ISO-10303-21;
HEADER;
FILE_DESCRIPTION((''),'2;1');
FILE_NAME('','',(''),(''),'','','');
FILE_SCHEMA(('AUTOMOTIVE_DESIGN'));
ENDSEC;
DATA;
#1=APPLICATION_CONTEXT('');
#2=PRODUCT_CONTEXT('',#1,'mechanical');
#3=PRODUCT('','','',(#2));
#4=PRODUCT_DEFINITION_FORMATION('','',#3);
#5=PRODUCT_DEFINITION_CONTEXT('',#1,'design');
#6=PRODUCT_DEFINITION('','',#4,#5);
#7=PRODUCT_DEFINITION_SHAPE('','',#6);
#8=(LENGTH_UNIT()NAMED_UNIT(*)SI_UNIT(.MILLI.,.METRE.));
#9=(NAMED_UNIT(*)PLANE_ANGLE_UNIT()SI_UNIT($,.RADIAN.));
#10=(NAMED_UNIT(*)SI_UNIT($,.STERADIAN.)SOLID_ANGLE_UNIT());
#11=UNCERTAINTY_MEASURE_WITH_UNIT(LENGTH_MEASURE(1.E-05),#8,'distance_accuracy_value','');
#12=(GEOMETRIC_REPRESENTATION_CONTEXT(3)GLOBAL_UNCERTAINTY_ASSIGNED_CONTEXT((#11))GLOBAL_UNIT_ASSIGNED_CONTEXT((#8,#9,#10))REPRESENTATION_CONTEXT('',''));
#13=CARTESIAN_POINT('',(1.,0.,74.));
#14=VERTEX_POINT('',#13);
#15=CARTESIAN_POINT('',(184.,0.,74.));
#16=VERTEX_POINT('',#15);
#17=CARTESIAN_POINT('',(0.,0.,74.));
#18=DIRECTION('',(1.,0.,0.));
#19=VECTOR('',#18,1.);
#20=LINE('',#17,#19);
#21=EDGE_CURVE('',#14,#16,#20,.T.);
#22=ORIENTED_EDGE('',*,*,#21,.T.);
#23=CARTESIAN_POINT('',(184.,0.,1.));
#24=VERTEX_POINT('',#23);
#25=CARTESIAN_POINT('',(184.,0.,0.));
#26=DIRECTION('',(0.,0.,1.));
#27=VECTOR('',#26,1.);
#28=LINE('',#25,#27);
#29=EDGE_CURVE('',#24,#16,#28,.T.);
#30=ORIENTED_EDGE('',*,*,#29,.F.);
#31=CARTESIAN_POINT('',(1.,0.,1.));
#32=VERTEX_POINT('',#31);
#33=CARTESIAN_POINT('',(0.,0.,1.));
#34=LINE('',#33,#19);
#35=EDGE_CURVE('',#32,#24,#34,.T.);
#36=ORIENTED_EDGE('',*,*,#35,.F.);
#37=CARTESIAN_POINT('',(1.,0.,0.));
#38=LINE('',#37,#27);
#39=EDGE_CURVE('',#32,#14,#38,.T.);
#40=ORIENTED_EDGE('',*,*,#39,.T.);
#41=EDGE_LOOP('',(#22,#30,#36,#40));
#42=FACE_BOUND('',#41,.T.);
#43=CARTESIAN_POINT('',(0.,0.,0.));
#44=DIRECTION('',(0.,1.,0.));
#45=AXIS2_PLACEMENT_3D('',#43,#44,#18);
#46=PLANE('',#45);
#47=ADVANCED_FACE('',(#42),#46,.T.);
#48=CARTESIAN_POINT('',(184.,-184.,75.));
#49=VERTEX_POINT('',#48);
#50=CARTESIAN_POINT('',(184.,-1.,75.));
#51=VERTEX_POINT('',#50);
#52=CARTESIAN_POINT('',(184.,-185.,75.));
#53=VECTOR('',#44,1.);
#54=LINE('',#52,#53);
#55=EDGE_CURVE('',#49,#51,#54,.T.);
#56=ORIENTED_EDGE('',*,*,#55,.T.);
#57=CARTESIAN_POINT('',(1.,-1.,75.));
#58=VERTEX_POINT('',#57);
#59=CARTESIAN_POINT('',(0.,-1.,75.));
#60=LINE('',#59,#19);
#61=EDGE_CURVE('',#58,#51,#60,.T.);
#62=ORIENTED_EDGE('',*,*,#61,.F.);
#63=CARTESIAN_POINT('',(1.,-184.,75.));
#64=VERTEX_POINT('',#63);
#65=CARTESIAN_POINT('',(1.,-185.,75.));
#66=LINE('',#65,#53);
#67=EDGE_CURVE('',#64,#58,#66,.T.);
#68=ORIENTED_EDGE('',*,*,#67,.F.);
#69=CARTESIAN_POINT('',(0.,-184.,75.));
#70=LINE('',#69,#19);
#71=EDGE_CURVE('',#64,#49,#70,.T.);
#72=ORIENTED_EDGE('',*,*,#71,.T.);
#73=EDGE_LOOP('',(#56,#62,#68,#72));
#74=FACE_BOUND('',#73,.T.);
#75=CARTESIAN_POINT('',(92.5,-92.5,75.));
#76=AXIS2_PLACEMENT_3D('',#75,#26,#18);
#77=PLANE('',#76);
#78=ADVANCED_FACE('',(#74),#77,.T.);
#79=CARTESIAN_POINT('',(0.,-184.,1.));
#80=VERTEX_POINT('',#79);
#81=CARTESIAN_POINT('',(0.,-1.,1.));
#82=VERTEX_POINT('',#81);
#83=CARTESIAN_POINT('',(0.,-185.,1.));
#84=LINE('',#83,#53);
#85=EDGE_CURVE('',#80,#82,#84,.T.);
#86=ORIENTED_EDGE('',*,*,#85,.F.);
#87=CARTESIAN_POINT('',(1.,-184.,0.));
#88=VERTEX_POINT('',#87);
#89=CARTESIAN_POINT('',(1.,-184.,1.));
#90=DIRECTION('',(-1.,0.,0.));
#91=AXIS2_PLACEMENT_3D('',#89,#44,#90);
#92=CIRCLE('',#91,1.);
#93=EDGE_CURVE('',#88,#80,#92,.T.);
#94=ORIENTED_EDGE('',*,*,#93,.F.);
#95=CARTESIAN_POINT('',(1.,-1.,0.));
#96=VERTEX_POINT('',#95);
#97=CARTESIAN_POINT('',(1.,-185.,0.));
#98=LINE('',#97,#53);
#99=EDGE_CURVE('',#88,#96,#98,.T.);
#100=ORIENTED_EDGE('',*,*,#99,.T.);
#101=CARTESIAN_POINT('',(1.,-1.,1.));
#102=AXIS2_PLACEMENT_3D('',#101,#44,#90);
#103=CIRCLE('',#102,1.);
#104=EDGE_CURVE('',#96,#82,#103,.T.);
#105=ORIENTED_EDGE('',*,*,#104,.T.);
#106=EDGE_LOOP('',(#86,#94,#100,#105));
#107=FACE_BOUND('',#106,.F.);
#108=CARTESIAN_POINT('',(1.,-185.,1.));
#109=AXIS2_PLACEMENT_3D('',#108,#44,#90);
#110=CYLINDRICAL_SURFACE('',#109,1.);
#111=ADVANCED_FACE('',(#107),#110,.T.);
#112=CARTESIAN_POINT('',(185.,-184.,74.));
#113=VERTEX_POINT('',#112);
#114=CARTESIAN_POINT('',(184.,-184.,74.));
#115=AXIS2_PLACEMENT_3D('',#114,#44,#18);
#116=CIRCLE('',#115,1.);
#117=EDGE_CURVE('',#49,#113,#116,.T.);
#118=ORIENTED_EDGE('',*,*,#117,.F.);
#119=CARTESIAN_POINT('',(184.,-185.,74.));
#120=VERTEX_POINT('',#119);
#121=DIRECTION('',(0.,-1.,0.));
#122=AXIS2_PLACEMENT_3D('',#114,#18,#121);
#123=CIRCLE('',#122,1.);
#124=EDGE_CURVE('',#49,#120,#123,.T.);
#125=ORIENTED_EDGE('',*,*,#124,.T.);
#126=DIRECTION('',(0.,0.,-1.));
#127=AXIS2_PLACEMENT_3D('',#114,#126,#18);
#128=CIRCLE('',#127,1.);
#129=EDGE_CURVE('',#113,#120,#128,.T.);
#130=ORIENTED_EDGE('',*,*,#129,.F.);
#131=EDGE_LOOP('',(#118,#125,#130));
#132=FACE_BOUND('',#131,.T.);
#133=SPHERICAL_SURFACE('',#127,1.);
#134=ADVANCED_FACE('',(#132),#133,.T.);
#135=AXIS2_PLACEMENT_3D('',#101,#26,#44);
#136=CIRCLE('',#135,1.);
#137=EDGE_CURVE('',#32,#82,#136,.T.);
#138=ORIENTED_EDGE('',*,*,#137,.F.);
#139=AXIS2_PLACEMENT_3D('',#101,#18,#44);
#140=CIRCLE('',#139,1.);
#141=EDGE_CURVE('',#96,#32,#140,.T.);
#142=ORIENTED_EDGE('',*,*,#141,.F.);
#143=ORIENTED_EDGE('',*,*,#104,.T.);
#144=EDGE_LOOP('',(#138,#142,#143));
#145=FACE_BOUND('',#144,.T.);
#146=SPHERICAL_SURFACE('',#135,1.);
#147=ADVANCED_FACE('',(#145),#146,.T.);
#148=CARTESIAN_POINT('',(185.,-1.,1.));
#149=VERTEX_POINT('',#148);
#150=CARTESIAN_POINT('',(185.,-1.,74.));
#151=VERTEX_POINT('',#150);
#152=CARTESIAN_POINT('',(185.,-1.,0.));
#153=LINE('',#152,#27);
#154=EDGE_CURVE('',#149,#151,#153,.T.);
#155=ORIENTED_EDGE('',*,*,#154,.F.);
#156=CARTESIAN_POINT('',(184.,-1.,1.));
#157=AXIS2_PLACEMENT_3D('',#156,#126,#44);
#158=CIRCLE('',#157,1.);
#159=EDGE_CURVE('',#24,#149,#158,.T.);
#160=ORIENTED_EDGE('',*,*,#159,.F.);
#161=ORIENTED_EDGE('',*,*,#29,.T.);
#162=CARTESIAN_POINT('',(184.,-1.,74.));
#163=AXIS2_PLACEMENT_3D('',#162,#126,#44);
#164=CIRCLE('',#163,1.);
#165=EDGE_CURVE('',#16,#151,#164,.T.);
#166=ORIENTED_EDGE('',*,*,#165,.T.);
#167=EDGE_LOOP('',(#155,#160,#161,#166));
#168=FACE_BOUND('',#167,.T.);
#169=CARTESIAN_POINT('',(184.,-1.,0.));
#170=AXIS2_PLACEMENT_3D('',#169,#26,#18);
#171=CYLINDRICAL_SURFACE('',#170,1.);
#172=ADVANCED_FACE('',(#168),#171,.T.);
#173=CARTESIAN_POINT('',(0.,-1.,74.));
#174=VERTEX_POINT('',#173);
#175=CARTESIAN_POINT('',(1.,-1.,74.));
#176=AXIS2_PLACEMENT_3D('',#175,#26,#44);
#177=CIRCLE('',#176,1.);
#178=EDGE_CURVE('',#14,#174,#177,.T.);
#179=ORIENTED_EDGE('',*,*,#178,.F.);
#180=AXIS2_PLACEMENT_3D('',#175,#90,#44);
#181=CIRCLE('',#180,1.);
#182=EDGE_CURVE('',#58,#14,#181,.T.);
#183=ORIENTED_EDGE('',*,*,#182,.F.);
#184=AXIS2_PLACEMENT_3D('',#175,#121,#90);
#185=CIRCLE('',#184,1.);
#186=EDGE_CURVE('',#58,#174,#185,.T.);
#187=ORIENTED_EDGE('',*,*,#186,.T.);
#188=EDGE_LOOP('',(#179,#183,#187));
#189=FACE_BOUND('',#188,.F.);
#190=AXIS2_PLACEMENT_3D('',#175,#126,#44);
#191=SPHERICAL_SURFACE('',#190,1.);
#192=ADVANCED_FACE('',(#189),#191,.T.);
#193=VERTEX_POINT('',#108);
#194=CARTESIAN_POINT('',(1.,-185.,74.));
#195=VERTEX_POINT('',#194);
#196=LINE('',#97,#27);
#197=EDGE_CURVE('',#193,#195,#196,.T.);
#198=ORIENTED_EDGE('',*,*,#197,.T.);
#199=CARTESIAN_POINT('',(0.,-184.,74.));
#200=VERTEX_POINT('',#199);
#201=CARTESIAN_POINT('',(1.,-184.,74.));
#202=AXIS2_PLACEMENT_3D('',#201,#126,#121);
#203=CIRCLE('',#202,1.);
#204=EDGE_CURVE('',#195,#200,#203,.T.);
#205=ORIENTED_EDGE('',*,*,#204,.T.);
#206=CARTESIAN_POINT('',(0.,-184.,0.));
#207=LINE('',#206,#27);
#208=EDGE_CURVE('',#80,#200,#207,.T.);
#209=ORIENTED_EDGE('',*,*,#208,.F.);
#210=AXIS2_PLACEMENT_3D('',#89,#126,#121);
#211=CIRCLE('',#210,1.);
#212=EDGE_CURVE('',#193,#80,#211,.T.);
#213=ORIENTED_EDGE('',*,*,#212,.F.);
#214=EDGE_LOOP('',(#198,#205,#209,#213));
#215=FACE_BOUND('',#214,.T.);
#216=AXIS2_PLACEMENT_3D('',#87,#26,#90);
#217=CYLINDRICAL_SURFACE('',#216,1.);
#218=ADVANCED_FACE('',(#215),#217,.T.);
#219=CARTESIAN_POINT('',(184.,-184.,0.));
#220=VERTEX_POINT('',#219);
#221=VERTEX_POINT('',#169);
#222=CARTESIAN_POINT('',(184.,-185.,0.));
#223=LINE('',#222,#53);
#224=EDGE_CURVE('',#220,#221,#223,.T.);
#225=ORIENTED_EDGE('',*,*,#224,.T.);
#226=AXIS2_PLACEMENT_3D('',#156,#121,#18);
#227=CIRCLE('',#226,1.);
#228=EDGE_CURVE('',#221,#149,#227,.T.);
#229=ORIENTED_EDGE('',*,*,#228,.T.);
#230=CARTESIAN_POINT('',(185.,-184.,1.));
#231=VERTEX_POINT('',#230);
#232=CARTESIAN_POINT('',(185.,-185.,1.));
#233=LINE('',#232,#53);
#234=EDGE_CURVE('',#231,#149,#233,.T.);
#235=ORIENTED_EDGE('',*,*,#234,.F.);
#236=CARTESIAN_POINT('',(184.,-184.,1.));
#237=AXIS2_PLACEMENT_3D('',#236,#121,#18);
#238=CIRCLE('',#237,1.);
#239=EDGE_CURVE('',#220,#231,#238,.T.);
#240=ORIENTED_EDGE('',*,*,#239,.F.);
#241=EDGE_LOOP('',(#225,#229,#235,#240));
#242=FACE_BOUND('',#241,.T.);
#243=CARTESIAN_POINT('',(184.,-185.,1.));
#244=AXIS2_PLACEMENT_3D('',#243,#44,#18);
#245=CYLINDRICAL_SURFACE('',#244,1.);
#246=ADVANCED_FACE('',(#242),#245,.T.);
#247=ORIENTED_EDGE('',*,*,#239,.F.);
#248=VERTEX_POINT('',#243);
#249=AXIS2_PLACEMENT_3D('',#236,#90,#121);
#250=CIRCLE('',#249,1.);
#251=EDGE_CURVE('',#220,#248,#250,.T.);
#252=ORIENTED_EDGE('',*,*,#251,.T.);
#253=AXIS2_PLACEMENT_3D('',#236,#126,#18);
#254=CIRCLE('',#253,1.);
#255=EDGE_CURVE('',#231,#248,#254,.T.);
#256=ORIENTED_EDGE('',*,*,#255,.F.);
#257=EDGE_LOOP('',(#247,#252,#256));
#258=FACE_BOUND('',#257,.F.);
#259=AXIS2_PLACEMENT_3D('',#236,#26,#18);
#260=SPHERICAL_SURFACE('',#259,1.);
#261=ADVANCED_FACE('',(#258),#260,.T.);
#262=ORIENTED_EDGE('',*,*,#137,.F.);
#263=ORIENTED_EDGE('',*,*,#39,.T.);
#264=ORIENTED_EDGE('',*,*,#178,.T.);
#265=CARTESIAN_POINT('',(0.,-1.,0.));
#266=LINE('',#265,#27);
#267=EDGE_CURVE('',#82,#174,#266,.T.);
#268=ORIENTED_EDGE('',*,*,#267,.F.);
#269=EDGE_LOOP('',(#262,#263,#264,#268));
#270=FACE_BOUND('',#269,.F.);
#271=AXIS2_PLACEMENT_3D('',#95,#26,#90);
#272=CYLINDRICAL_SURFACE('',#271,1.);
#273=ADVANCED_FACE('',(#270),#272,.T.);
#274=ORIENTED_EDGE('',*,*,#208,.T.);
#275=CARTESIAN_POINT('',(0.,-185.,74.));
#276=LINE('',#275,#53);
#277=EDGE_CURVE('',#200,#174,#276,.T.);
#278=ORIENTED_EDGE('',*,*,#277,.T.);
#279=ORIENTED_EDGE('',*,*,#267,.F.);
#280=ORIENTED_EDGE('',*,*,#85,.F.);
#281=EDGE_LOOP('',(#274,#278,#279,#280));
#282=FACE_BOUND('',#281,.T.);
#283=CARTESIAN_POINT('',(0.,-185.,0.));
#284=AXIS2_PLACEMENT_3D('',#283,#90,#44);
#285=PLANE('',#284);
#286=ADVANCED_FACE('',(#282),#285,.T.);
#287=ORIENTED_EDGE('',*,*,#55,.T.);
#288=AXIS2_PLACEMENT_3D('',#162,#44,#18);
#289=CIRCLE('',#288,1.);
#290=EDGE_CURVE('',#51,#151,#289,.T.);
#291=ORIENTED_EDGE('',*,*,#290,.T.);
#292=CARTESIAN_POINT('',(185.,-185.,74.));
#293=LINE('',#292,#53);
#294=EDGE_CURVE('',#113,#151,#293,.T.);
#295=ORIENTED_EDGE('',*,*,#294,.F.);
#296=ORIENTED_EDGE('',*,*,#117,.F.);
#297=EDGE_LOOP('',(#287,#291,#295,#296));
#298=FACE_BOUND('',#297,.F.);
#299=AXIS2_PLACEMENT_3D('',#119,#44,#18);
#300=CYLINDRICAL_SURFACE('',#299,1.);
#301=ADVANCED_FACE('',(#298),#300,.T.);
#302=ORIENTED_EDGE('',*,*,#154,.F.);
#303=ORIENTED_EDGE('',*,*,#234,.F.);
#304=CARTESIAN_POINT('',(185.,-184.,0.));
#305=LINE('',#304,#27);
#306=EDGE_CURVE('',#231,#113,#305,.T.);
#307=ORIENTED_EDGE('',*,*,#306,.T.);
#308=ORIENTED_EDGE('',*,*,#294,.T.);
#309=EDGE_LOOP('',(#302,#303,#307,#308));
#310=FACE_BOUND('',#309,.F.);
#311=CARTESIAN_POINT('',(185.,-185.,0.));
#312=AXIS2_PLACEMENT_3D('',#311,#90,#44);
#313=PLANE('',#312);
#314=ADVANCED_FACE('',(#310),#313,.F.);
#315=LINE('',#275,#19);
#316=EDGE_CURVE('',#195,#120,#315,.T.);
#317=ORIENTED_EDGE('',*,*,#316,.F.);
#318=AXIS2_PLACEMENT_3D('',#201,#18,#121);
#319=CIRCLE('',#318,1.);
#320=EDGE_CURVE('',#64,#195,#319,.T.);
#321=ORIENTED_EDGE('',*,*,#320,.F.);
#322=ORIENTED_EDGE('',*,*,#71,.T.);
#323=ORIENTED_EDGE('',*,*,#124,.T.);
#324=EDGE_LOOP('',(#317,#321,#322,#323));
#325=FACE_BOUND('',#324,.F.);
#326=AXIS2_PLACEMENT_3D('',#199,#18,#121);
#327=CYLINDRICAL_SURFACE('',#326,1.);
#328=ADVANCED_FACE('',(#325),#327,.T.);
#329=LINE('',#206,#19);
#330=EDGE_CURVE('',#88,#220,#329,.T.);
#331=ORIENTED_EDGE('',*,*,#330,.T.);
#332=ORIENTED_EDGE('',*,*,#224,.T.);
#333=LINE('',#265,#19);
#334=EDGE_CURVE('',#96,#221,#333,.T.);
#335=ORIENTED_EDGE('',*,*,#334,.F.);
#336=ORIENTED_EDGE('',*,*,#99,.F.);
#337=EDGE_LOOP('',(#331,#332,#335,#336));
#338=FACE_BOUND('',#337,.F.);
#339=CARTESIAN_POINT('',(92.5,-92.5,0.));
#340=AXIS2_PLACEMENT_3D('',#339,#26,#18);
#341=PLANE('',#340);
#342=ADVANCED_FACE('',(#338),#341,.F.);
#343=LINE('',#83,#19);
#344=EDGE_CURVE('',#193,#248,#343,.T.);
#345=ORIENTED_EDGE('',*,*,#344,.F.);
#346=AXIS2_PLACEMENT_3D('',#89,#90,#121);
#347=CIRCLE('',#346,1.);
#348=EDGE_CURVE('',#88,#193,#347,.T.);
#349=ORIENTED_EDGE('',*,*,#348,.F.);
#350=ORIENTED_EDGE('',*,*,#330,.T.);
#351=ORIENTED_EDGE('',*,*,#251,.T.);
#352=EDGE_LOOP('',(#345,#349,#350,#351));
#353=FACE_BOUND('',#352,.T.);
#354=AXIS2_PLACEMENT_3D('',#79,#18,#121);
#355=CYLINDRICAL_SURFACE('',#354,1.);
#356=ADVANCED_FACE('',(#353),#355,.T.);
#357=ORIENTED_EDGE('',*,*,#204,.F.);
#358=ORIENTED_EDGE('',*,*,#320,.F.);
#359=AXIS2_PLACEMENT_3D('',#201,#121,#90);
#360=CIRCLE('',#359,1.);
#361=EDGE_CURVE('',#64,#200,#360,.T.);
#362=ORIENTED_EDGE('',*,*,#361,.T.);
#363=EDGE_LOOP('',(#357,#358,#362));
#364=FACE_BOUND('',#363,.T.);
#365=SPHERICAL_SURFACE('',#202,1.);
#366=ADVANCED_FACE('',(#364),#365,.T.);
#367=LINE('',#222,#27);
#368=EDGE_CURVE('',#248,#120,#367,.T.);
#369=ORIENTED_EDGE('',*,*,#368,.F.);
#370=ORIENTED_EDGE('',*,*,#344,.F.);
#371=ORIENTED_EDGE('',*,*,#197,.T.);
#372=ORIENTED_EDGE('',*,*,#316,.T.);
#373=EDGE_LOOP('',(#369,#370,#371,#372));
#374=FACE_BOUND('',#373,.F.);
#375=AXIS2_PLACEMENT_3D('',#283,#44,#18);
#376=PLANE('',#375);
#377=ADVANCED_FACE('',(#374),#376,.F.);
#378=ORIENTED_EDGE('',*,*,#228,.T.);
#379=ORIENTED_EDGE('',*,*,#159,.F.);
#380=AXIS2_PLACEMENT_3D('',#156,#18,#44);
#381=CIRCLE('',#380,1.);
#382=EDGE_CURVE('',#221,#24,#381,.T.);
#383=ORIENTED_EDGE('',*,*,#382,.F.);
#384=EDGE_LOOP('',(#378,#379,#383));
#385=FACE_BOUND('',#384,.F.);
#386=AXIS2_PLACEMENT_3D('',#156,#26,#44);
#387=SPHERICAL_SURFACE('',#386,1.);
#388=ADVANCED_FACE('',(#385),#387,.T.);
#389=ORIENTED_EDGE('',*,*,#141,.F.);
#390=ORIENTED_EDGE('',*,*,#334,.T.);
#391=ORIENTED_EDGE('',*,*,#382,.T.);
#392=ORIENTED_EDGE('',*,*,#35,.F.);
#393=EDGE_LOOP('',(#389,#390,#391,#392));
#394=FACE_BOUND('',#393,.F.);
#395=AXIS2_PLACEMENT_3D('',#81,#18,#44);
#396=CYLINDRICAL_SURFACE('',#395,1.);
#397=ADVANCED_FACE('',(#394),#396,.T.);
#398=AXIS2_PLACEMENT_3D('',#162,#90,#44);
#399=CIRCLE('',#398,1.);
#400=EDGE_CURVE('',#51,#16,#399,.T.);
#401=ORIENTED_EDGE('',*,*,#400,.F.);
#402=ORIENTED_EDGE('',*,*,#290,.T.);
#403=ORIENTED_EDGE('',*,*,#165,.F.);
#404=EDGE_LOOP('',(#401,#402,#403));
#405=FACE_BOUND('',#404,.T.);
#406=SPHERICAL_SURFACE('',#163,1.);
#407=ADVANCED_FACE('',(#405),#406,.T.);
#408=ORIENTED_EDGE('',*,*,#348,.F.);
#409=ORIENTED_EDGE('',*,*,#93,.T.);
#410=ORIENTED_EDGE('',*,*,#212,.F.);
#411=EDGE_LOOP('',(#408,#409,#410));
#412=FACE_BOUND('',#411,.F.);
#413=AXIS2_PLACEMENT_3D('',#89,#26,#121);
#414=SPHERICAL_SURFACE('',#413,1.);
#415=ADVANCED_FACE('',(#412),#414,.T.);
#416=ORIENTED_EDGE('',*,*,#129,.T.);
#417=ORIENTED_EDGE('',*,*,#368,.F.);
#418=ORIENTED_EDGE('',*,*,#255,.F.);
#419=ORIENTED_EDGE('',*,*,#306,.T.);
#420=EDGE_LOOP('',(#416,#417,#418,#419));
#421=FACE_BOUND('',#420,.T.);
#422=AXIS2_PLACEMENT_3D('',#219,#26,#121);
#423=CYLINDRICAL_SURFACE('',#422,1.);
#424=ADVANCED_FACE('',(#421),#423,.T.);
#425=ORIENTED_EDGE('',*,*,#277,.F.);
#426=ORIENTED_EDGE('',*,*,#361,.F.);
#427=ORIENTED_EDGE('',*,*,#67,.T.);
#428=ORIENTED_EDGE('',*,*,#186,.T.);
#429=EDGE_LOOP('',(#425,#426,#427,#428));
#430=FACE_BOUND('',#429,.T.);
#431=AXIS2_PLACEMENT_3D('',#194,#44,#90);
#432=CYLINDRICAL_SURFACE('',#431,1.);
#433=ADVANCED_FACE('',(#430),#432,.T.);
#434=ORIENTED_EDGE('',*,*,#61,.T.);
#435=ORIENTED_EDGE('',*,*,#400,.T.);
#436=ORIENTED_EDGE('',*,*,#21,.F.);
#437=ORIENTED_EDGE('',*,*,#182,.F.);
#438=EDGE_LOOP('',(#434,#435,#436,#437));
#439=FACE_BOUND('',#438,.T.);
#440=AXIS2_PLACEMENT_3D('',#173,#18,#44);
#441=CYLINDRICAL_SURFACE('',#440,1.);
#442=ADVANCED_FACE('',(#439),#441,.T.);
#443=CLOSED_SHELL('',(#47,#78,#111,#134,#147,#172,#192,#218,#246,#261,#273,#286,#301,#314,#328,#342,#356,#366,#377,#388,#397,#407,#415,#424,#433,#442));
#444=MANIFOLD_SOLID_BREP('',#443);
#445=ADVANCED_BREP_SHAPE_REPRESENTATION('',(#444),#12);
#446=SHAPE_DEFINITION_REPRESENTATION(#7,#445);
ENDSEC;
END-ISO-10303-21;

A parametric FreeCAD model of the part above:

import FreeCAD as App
import Part
import Sketcher
from FreeCAD import Vector
Q = App.Units.Quantity

doc = App.newDocument("Part")
body = doc.addObject("PartDesign::Body", "Body")

# Sketch on XY plane
sketch1 = doc.addObject("Sketcher::SketchObject", "Sketch")
body.addObject(sketch1)
sketch1.AttachmentSupport = (doc.XY_Plane, [""])
sketch1.MapMode = "FlatFace"
sketch1.addGeometry(Part.LineSegment(Vector(0, 0, 0), Vector(0, -185, 0)), False)
sketch1.addGeometry(Part.LineSegment(Vector(0, -185, 0), Vector(185, -185, 0)), False)
sketch1.addGeometry(Part.LineSegment(Vector(185, -185, 0), Vector(185, 0, 0)), False)
sketch1.addGeometry(Part.LineSegment(Vector(185, 0, 0), Vector(0, 0, 0)), False)
sketch1.addConstraint(Sketcher.Constraint("Coincident", 0, 2, 1, 1))
sketch1.addConstraint(Sketcher.Constraint("Coincident", 1, 2, 2, 1))
sketch1.addConstraint(Sketcher.Constraint("Coincident", 2, 2, 3, 1))
sketch1.addConstraint(Sketcher.Constraint("Coincident", 3, 2, 0, 1))
sketch1.addConstraint(Sketcher.Constraint("Vertical", 0))
sketch1.addConstraint(Sketcher.Constraint("Horizontal", 1))
sketch1.addConstraint(Sketcher.Constraint("Vertical", 2))
sketch1.addConstraint(Sketcher.Constraint("Horizontal", 3))
sketch1.addConstraint(Sketcher.Constraint("Coincident", 3, 2, -1, 1))
sketch1.addConstraint(Sketcher.Constraint("Equal", 3, 0))
sketch1.addConstraint(Sketcher.Constraint("DistanceX", 1, 1, 1, 2, Q("185 mm")))
pad1 = doc.addObject("PartDesign::Pad", "Pad")
body.addObject(pad1)
pad1.Profile = sketch1
pad1.Length = 75
doc.recompute()

fillet = doc.addObject("PartDesign::Fillet", "Fillet")
body.addObject(fillet)
fillet.Base = (pad1, ["Edge1"])
fillet.UseAllEdges = True
fillet.Radius = 1

doc.recompute()
